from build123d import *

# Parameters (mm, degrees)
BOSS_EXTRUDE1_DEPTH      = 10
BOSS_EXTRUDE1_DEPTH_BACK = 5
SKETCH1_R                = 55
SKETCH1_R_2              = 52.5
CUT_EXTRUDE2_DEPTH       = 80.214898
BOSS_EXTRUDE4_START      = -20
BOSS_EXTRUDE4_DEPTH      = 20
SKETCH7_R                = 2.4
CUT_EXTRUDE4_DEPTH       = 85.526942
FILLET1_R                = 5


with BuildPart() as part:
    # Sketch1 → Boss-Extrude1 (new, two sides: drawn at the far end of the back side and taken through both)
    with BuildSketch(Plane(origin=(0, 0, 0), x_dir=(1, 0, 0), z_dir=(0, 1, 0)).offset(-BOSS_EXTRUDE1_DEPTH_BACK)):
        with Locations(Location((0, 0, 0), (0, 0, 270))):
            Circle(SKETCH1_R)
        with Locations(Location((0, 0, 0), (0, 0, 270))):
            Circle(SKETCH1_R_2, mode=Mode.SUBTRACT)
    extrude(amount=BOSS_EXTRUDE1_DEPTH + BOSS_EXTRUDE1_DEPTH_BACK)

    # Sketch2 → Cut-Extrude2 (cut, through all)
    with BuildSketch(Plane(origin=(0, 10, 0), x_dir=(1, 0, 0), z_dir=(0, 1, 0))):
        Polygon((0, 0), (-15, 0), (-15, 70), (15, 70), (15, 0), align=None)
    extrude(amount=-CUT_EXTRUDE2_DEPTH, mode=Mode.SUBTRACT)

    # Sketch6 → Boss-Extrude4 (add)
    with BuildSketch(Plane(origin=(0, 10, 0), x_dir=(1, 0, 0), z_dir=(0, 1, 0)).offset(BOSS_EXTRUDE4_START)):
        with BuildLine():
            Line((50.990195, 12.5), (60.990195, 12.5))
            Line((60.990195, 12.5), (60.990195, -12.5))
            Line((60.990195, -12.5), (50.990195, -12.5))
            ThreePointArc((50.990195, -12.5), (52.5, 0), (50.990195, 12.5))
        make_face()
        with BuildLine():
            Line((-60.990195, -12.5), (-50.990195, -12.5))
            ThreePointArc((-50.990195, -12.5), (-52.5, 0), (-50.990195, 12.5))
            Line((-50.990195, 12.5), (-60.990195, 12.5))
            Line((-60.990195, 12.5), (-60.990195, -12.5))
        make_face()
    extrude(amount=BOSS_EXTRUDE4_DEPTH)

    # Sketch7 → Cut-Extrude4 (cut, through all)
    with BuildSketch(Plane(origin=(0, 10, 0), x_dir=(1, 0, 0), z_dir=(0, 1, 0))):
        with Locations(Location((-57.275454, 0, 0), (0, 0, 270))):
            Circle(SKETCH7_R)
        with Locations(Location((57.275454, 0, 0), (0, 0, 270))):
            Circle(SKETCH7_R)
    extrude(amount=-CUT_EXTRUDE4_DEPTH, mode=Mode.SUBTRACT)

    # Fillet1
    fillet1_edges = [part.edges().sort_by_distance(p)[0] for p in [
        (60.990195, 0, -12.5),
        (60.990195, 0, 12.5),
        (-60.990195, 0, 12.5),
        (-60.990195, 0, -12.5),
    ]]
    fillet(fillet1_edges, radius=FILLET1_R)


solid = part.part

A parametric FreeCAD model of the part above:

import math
import FreeCAD as App
import Part
import Sketcher


def edges_at(feature, points):
    """Names of the edges that pass closest to the given points."""
    edges = feature.Shape.Edges
    near = lambda p: min(range(len(edges)), key=lambda i: edges[i].distToShape(Part.Vertex(*p))[0])
    return sorted({f"Edge{near(p) + 1}" for p in points})

doc = App.newDocument("Part")
body = doc.addObject("PartDesign::Body", "Body")

# Sketch on XZ plane
sketch1 = body.newObject("Sketcher::SketchObject", "Sketch")
sketch1.AttachmentSupport = (doc.getObject("XZ_Plane"), [""])
sketch1.MapMode = "FlatFace"
sketch1.addGeometry([
    Part.Circle(App.Vector(0, 0, 0), App.Vector(0, 0, 1), 55),
    Part.Circle(App.Vector(0, 0, 0), App.Vector(0, 0, 1), 52),
], False)
sketch1.addConstraint([
    Sketcher.Constraint("Coincident", 0, 3, -1, 1),
    Sketcher.Constraint("Coincident", 1, 3, -1, 1),
    Sketcher.Constraint("Diameter", 0, 110.0),
    Sketcher.Constraint("Diameter", 1, 105.0),
])
pad1 = body.newObject("PartDesign::Pad", "Pad")
pad1.Profile = sketch1
pad1.Type = "TwoLengths"
pad1.Length = 10
pad1.Length2 = 5
pad1.Reversed = True

# Sketch on XZ plane
sketch2 = body.newObject("Sketcher::SketchObject", "Sketch001")
sketch2.AttachmentSupport = (doc.getObject("XZ_Plane"), [""])
sketch2.MapMode = "FlatFace"
sketch2.AttachmentOffset = App.Placement(App.Vector(0, 0, -10), App.Rotation())
sketch2.addGeometry([
    Part.LineSegment(App.Vector(-15, 0, 0), App.Vector(15, 0, 0)),
    Part.LineSegment(App.Vector(15, 0, 0), App.Vector(15, -70, 0)),
    Part.LineSegment(App.Vector(15, -70, 0), App.Vector(-15, -70, 0)),
    Part.LineSegment(App.Vector(-15, -70, 0), App.Vector(-15, 0, 0)),
], False)
sketch2.addConstraint([
    Sketcher.Constraint("Coincident", 0, 2, 1, 1),
    Sketcher.Constraint("Coincident", 1, 2, 2, 1),
    Sketcher.Constraint("Coincident", 2, 2, 3, 1),
    Sketcher.Constraint("Coincident", 3, 2, 0, 1),
    Sketcher.Constraint("Horizontal", 0),
    Sketcher.Constraint("Vertical", 1),
    Sketcher.Constraint("Horizontal", 2),
    Sketcher.Constraint("Vertical", 3),
    Sketcher.Constraint("Symmetric", 0, 2, 3, 2, -1, 1),
    Sketcher.Constraint("DistanceX", 0, 1, 0, 2, 30.0),
    Sketcher.Constraint("DistanceY", 1, 2, 1, 1, 70.0),
])
pocket1 = body.newObject("PartDesign::Pocket", "Pocket")
pocket1.Profile = sketch2
pocket1.Type = "ThroughAll"
pocket1.Reversed = True

# Sketch on XZ plane
sketch3 = body.newObject("Sketcher::SketchObject", "Sketch002")
sketch3.AttachmentSupport = (doc.getObject("XZ_Plane"), [""])
sketch3.MapMode = "FlatFace"
sketch3.AttachmentOffset = App.Placement(App.Vector(0, 0, 10), App.Rotation())
sketch3.addGeometry([
    Part.LineSegment(App.Vector(61, -12, 0), App.Vector(51, -12, 0)),  # 0
    Part.ArcOfCircle(Part.Circle(App.Vector(0, 0, 0), App.Vector(0, 0, 1), 52), math.radians(-14), math.radians(14)),  # 1
    Part.LineSegment(App.Vector(51, 12, 0), App.Vector(61, 12, 0)),  # 2
    Part.LineSegment(App.Vector(61, 12, 0), App.Vector(61, -12, 0)),  # 3
    Part.LineSegment(App.Vector(-61, 12, 0), App.Vector(-51, 12, 0)),  # 4
    Part.ArcOfCircle(Part.Circle(App.Vector(0, 0, 0), App.Vector(0, 0, 1), 52), math.radians(166), math.radians(194)),  # 5
    Part.LineSegment(App.Vector(-51, -12, 0), App.Vector(-61, -12, 0)),  # 6
    Part.LineSegment(App.Vector(-61, -12, 0), App.Vector(-61, 12, 0)),  # 7
], False)
sketch3.addConstraint([
    Sketcher.Constraint("Coincident", 0, 2, 1, 1),
    Sketcher.Constraint("Coincident", 1, 2, 2, 1),
    Sketcher.Constraint("Coincident", 2, 2, 3, 1),
    Sketcher.Constraint("Coincident", 3, 2, 0, 1),
    Sketcher.Constraint("Coincident", 4, 2, 5, 1),
    Sketcher.Constraint("Coincident", 5, 2, 6, 1),
    Sketcher.Constraint("Coincident", 6, 2, 7, 1),
    Sketcher.Constraint("Coincident", 7, 2, 4, 1),
    Sketcher.Constraint("Horizontal", 0),
    Sketcher.Constraint("Horizontal", 2),
    Sketcher.Constraint("Vertical", 3),
    Sketcher.Constraint("Horizontal", 4),
    Sketcher.Constraint("Horizontal", 6),
    Sketcher.Constraint("Vertical", 7),
    Sketcher.Constraint("Coincident", 1, 3, -1, 1),
    Sketcher.Constraint("Coincident", 5, 3, -1, 1),
    Sketcher.Constraint("Equal", 1, 5),
    Sketcher.Constraint("Symmetric", 2, 2, 6, 2, -1, 1),
    Sketcher.Constraint("Horizontal", 2, 2, 4, 2),
    Sketcher.Constraint("Horizontal", 3, 2, 5, 2),
    Sketcher.Constraint("DistanceX", 0, 2, 0, 1, 10.0),
    Sketcher.Constraint("DistanceY", 3, 2, 3, 1, 25.0),
    Sketcher.Constraint("Radius", 1, 52.499995),
])
pad2 = body.newObject("PartDesign::Pad", "Pad001")
pad2.Profile = sketch3
pad2.Length = 20
pad2.Reversed = True

# Sketch on XZ plane
sketch4 = body.newObject("Sketcher::SketchObject", "Sketch003")
sketch4.AttachmentSupport = (doc.getObject("XZ_Plane"), [""])
sketch4.MapMode = "FlatFace"
sketch4.AttachmentOffset = App.Placement(App.Vector(0, 0, -10), App.Rotation())
sketch4.addGeometry([
    Part.Circle(App.Vector(-57.3, 0, 0), App.Vector(0, 0, 1), 2.4),
    Part.Circle(App.Vector(57.3, 0, 0), App.Vector(0, 0, 1), 2.4),
], False)
sketch4.addConstraint([
    Sketcher.Constraint("Equal", 0, 1),
    Sketcher.Constraint("Symmetric", 0, 3, 1, 3, -1, 1),
    Sketcher.Constraint("PointOnObject", 0, 3, -1),
    Sketcher.Constraint("Diameter", 0, 4.8),
    Sketcher.Constraint("DistanceX", 0, 3, 1, 3, 114.550908),
])
pocket2 = body.newObject("PartDesign::Pocket", "Pocket001")
pocket2.Profile = sketch4
pocket2.Type = "ThroughAll"
pocket2.Reversed = True
doc.recompute()

fillet = body.newObject("PartDesign::Fillet", "Fillet")
fillet.Base = (pocket2, edges_at(pocket2, [
    (60.99, 0, -12.5),
    (60.99, 0, 12.5),
    (-60.99, 0, 12.5),
    (-60.99, 0, -12.5),
]))
fillet.Radius = 5

doc.recompute()
